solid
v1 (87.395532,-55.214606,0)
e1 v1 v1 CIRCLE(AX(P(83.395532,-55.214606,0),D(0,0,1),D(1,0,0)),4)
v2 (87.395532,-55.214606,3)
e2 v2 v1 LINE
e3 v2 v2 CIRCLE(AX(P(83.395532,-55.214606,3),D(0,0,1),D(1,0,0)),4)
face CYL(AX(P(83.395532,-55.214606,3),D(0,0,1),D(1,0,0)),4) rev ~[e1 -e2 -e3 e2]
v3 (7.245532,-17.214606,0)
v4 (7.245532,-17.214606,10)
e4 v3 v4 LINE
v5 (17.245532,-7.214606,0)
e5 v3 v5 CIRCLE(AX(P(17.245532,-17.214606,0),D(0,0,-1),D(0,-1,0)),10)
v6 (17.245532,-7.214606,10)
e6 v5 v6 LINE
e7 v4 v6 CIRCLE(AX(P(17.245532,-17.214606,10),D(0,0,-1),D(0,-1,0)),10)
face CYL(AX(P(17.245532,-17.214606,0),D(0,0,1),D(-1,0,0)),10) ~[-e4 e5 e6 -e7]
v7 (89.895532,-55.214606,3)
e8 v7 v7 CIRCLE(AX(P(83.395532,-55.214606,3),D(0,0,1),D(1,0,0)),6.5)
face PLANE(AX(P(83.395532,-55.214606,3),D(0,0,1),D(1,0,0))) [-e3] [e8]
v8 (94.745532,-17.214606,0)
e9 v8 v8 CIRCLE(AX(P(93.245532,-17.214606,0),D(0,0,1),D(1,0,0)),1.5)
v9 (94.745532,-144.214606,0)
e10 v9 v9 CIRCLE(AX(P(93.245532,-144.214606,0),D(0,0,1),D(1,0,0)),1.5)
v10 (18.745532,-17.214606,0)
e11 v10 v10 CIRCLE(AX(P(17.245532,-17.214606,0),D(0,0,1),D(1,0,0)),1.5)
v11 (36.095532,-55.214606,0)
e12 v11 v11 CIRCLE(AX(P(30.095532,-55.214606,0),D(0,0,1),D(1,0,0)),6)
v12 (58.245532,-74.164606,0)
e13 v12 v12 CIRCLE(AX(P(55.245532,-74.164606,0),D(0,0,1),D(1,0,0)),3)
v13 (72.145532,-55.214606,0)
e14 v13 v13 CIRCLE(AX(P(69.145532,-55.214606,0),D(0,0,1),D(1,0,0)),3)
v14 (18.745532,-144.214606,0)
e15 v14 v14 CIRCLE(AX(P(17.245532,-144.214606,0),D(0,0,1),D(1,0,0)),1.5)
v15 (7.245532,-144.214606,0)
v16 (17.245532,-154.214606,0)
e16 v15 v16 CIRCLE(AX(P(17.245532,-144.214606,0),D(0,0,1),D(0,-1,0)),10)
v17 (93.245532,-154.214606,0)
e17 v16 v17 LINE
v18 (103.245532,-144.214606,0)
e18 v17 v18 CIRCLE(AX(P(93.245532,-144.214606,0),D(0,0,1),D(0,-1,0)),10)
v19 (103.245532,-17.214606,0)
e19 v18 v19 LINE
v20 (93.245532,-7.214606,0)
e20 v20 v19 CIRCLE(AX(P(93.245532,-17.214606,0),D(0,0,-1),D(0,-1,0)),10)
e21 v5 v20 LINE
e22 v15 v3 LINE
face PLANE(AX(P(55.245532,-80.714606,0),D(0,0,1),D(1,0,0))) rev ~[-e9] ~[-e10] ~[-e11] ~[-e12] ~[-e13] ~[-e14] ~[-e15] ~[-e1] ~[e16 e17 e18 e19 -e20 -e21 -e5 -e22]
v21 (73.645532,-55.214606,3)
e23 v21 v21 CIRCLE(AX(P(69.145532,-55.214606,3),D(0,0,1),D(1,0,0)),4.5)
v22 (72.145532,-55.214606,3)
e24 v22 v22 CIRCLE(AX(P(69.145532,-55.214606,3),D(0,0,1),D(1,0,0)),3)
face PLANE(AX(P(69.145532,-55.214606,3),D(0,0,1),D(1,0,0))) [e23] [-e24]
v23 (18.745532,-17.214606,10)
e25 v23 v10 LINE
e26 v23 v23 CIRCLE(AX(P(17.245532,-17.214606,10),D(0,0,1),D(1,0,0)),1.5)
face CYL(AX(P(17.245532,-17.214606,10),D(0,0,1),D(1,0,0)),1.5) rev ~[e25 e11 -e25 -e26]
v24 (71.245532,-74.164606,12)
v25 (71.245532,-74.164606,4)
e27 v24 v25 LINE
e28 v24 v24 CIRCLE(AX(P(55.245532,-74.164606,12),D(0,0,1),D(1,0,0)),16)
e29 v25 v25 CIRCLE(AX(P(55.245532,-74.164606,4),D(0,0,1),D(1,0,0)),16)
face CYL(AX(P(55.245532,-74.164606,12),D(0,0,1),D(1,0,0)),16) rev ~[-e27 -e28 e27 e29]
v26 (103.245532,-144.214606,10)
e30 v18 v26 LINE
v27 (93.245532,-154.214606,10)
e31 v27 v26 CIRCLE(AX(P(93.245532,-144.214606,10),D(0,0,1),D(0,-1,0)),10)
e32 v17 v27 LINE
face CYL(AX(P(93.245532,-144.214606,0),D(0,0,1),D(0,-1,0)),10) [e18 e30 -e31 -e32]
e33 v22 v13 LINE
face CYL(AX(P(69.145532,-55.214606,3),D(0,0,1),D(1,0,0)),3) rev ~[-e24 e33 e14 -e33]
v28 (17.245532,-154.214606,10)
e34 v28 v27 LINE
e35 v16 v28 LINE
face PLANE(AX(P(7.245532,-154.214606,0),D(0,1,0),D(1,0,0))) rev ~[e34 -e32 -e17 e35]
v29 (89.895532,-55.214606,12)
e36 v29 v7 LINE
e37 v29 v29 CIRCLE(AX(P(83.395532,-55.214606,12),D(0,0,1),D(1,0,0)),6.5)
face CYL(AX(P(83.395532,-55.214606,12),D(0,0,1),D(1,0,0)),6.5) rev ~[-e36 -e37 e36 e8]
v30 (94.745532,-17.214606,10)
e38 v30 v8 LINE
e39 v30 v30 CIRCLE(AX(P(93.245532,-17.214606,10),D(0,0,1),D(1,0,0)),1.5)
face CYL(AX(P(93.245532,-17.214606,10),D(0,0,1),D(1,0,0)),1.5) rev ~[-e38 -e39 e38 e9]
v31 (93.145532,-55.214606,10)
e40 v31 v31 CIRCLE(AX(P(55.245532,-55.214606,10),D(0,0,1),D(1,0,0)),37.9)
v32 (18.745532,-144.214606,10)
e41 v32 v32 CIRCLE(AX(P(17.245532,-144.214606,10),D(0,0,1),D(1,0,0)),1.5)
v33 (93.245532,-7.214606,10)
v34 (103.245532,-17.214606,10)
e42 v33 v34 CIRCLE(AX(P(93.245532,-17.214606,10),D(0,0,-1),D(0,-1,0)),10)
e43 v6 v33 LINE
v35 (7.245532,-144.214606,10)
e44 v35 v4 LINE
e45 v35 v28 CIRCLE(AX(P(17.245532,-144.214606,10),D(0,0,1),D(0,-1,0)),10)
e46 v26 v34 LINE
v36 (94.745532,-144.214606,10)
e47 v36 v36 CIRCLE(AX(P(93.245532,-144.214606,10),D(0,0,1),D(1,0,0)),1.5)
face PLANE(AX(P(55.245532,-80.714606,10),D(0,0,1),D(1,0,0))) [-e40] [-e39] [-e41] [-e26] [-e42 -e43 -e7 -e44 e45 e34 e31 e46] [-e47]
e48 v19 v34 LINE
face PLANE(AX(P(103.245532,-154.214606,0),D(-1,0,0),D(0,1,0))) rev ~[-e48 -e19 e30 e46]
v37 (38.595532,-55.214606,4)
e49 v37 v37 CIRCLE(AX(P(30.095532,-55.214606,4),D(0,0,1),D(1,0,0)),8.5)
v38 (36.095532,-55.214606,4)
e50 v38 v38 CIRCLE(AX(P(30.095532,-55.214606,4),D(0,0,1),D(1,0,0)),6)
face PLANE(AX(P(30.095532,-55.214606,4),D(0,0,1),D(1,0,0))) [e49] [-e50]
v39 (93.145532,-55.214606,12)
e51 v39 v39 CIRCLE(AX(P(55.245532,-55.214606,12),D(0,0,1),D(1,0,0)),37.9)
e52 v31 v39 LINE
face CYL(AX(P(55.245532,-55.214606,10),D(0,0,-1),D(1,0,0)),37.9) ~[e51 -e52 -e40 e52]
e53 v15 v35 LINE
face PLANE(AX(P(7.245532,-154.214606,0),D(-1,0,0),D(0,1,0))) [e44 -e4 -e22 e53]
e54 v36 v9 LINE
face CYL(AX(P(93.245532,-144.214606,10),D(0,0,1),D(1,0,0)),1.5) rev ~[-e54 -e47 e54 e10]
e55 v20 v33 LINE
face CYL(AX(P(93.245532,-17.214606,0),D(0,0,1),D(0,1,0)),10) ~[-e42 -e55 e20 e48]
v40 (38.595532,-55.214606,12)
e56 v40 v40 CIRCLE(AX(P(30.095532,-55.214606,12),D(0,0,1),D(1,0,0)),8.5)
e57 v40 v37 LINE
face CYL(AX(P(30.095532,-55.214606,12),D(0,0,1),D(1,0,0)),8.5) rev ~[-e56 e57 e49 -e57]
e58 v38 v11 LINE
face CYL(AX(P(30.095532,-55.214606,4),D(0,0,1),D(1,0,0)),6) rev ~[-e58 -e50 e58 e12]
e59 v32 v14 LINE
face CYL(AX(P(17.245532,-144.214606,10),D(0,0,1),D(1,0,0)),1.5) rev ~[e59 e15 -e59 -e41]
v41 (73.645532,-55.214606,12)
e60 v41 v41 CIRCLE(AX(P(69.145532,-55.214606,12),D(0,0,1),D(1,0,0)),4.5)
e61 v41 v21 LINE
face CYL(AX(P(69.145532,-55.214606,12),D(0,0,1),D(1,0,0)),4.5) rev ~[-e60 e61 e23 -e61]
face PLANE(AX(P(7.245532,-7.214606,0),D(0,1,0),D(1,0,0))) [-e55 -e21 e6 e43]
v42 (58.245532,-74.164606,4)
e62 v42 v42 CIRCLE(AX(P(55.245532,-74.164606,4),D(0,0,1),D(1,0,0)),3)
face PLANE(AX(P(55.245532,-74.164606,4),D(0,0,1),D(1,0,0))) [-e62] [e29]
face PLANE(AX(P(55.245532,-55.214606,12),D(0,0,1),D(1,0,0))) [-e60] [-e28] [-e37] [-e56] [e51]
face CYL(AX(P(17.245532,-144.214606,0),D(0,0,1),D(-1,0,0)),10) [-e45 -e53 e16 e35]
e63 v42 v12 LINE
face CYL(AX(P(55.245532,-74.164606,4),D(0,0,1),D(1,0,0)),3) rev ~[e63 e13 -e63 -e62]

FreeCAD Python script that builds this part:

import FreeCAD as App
import Part
import Sketcher
from FreeCAD import Vector
Q = App.Units.Quantity


def edges_at(feature, points):
    """Names of the edges that pass closest to the given points."""
    edges = feature.Shape.Edges
    near = lambda p: min(range(len(edges)), key=lambda i: edges[i].distToShape(Part.Vertex(*p))[0])
    return sorted({f"Edge{near(p) + 1}" for p in points})


def add_polygon(sketch, points):
    """Adds a closed chain of lines whose ends are joined by coincident constraints."""
    first, n = sketch.GeometryCount, len(points)
    for a, b in zip(points, points[1:] + points[:1]):
        sketch.addGeometry(Part.LineSegment(App.Vector(*a, 0), App.Vector(*b, 0)), False)
    for i in range(n):
        sketch.addConstraint(Sketcher.Constraint("Coincident", first + i, 2, first + (i + 1) % n, 1))

doc = App.newDocument("Part")
body = doc.addObject("PartDesign::Body", "Body")

# Sketch on XY plane
sketch1 = doc.addObject("Sketcher::SketchObject", "Sketch")
body.addObject(sketch1)
sketch1.AttachmentSupport = (doc.XY_Plane, [""])
sketch1.MapMode = "FlatFace"
add_polygon(sketch1, [(-254.727857, -291.466475), (-254.727857, -438.466475), (-158.727857, -438.466475), (-158.727857, -291.466475)])  # lines 0-3
sketch1.addConstraint([
    Sketcher.Constraint("Vertical", 0),
    Sketcher.Constraint("Horizontal", 1),
    Sketcher.Constraint("Vertical", 2),
    Sketcher.Constraint("Horizontal", 3),
    Sketcher.Constraint("DistanceX", 1, 1, 1, 2, Q("96 mm")),
    Sketcher.Constraint("DistanceY", 0, 2, 0, 1, Q("147 mm")),
    Sketcher.Constraint("DistanceX", 0, 2, -1, 1, Q("254.727857 mm")),
    Sketcher.Constraint("DistanceY", 0, 2, -1, 1, Q("438.466475 mm")),
])
pad1 = doc.addObject("PartDesign::Pad", "Pad")
body.addObject(pad1)
pad1.Profile = sketch1
pad1.Length = 10

# Sketch on XY plane
sketch2 = doc.addObject("Sketcher::SketchObject", "Sketch001")
body.addObject(sketch2)
sketch2.AttachmentSupport = (doc.XY_Plane, [""])
sketch2.MapMode = "FlatFace"
sketch2.AttachmentOffset = App.Placement(Vector(0, 0, 10), App.Rotation())
sketch2.addGeometry(Part.Circle(Vector(-206.727857, -339.466475, 0), Vector(0, 0, 1), 37.9), False)
sketch2.addConstraint([
    Sketcher.Constraint("Diameter", 0, Q("75.8 mm")),
    Sketcher.Constraint("DistanceX", 0, 3, -1, 1, Q("206.727857 mm")),
    Sketcher.Constraint("DistanceY", 0, 3, -1, 1, Q("339.466475 mm")),
])
pad2 = doc.addObject("PartDesign::Pad", "Pad001")
body.addObject(pad2)
pad2.Profile = sketch2
pad2.Length = 2

# Sketch on XY plane
sketch3 = doc.addObject("Sketcher::SketchObject", "Sketch002")
body.addObject(sketch3)
sketch3.AttachmentSupport = (doc.XY_Plane, [""])
sketch3.MapMode = "FlatFace"
sketch3.AttachmentOffset = App.Placement(Vector(0, 0, 12), App.Rotation())
sketch3.addGeometry(Part.Circle(Vector(-206.727857, -358.416475, 0), Vector(0, 0, 1), 16), False)
sketch3.addConstraint([
    Sketcher.Constraint("Diameter", 0, Q("32 mm")),
    Sketcher.Constraint("DistanceX", 0, 3, -1, 1, Q("206.727857 mm")),
    Sketcher.Constraint("DistanceY", 0, 3, -1, 1, Q("358.416475 mm")),
])
pocket1 = doc.addObject("PartDesign::Pocket", "Pocket")
body.addObject(pocket1)
pocket1.Profile = sketch3
pocket1.Length = 8

# Sketch on XY plane
sketch4 = doc.addObject("Sketcher::SketchObject", "Sketch003")
body.addObject(sketch4)
sketch4.AttachmentSupport = (doc.XY_Plane, [""])
sketch4.MapMode = "FlatFace"
sketch4.AttachmentOffset = App.Placement(Vector(0, 0, 4), App.Rotation())
sketch4.addGeometry(Part.Circle(Vector(-206.727857, -358.416475, 0), Vector(0, 0, 1), 3), False)
sketch4.addConstraint([
    Sketcher.Constraint("Diameter", 0, Q("6 mm")),
    Sketcher.Constraint("DistanceX", 0, 3, -1, 1, Q("206.727857 mm")),
    Sketcher.Constraint("DistanceY", 0, 3, -1, 1, Q("358.416475 mm")),
])
pocket2 = doc.addObject("PartDesign::Pocket", "Pocket001")
body.addObject(pocket2)
pocket2.Profile = sketch4
pocket2.Type = "ThroughAll"

# Sketch on XY plane
sketch5 = doc.addObject("Sketcher::SketchObject", "Sketch004")
body.addObject(sketch5)
sketch5.AttachmentSupport = (doc.XY_Plane, [""])
sketch5.MapMode = "FlatFace"
sketch5.AttachmentOffset = App.Placement(Vector(0, 0, 12), App.Rotation())
sketch5.addGeometry(Part.Circle(Vector(-231.877857, -339.466475, 0), Vector(0, 0, 1), 8.5), False)
sketch5.addConstraint([
    Sketcher.Constraint("Diameter", 0, Q("17 mm")),
    Sketcher.Constraint("DistanceX", 0, 3, -1, 1, Q("231.877857 mm")),
    Sketcher.Constraint("DistanceY", 0, 3, -1, 1, Q("339.466475 mm")),
])
pocket3 = doc.addObject("PartDesign::Pocket", "Pocket002")
body.addObject(pocket3)
pocket3.Profile = sketch5
pocket3.Length = 8

# Sketch on XY plane
sketch6 = doc.addObject("Sketcher::SketchObject", "Sketch005")
body.addObject(sketch6)
sketch6.AttachmentSupport = (doc.XY_Plane, [""])
sketch6.MapMode = "FlatFace"
sketch6.AttachmentOffset = App.Placement(Vector(0, 0, 4), App.Rotation())
sketch6.addGeometry(Part.Circle(Vector(-231.877857, -339.466475, 0), Vector(0, 0, 1), 6), False)
sketch6.addConstraint([
    Sketcher.Constraint("Diameter", 0, Q("12 mm")),
    Sketcher.Constraint("DistanceX", 0, 3, -1, 1, Q("231.877857 mm")),
    Sketcher.Constraint("DistanceY", 0, 3, -1, 1, Q("339.466475 mm")),
])
pocket4 = doc.addObject("PartDesign::Pocket", "Pocket003")
body.addObject(pocket4)
pocket4.Profile = sketch6
pocket4.Type = "ThroughAll"

# Sketch on XY plane
sketch7 = doc.addObject("Sketcher::SketchObject", "Sketch006")
body.addObject(sketch7)
sketch7.AttachmentSupport = (doc.XY_Plane, [""])
sketch7.MapMode = "FlatFace"
sketch7.AttachmentOffset = App.Placement(Vector(0, 0, 12), App.Rotation())
sketch7.addGeometry([
    Part.Circle(Vector(-192.827857, -339.466475, 0), Vector(0, 0, 1), 4.5),
    Part.Circle(Vector(-178.577857, -339.466475, 0), Vector(0, 0, 1), 6.5),
], False)
sketch7.addConstraint([
    Sketcher.Constraint("Horizontal", 0, 3, 1, 3),
    Sketcher.Constraint("Diameter", 0, Q("9 mm")),
    Sketcher.Constraint("Diameter", 1, Q("13 mm")),
    Sketcher.Constraint("DistanceX", 0, 3, 1, 3, Q("14.25 mm")),
    Sketcher.Constraint("DistanceX", 0, 3, -1, 1, Q("192.827857 mm")),
    Sketcher.Constraint("DistanceY", 0, 3, -1, 1, Q("339.466475 mm")),
])
pocket5 = doc.addObject("PartDesign::Pocket", "Pocket004")
body.addObject(pocket5)
pocket5.Profile = sketch7
pocket5.Length = 9

# Sketch on XY plane
sketch8 = doc.addObject("Sketcher::SketchObject", "Sketch007")
body.addObject(sketch8)
sketch8.AttachmentSupport = (doc.XY_Plane, [""])
sketch8.MapMode = "FlatFace"
sketch8.AttachmentOffset = App.Placement(Vector(0, 0, 3), App.Rotation())
sketch8.addGeometry([
    Part.Circle(Vector(-178.577857, -339.466475, 0), Vector(0, 0, 1), 4),
    Part.Circle(Vector(-192.827857, -339.466475, 0), Vector(0, 0, 1), 3),
], False)
sketch8.addConstraint([
    Sketcher.Constraint("Horizontal", 0, 3, 1, 3),
    Sketcher.Constraint("Diameter", 0, Q("8 mm")),
    Sketcher.Constraint("Diameter", 1, Q("6 mm")),
    Sketcher.Constraint("DistanceX", 1, 3, 0, 3, Q("14.25 mm")),
    Sketcher.Constraint("DistanceX", 0, 3, -1, 1, Q("178.577857 mm")),
    Sketcher.Constraint("DistanceY", 0, 3, -1, 1, Q("339.466475 mm")),
])
pocket6 = doc.addObject("PartDesign::Pocket", "Pocket005")
body.addObject(pocket6)
pocket6.Profile = sketch8
pocket6.Type = "ThroughAll"

# Sketch on XY plane
sketch9 = doc.addObject("Sketcher::SketchObject", "Sketch008")
body.addObject(sketch9)
sketch9.AttachmentSupport = (doc.XY_Plane, [""])
sketch9.MapMode = "FlatFace"
sketch9.AttachmentOffset = App.Placement(Vector(0, 0, 10), App.Rotation())
sketch9.addGeometry([
    Part.Circle(Vector(-244.727857, -301.466475, 0), Vector(0, 0, 1), 1.5),  # 0
    Part.Circle(Vector(-168.727857, -301.466475, 0), Vector(0, 0, 1), 1.5),  # 1
    Part.Circle(Vector(-168.727857, -428.466475, 0), Vector(0, 0, 1), 1.5),  # 2
    Part.Circle(Vector(-244.727857, -428.466475, 0), Vector(0, 0, 1), 1.5),  # 3
    Part.Circle(Vector(-214.611015, -276.454363, 0), Vector(0, 0, 1), 1),  # 4
    Part.Circle(Vector(-201.837814, -276.122591, 0), Vector(0, 0, 1), 1.5),  # 5
], False)
sketch9.addConstraint([
    Sketcher.Constraint("Equal", 0, 1),
    Sketcher.Constraint("Equal", 1, 2),
    Sketcher.Constraint("Equal", 2, 3),
    Sketcher.Constraint("Equal", 3, 5),
    Sketcher.Constraint("Horizontal", 0, 3, 1, 3),
    Sketcher.Constraint("Horizontal", 2, 3, 3, 3),
    Sketcher.Constraint("Vertical", 1, 3, 2, 3),
    Sketcher.Constraint("Vertical", 0, 3, 3, 3),
    Sketcher.Constraint("Diameter", 0, Q("3 mm")),
    Sketcher.Constraint("Diameter", 4, Q("2 mm")),
    Sketcher.Constraint("DistanceX", 0, 3, 1, 3, Q("76 mm")),
    Sketcher.Constraint("DistanceY", 2, 3, 1, 3, Q("127 mm")),
    Sketcher.Constraint("DistanceX", 4, 3, 5, 3, Q("12.773201 mm")),
    Sketcher.Constraint("DistanceY", 5, 3, -1, 1, Q("276.122591 mm")),
    Sketcher.Constraint("DistanceX", 0, 3, 4, 3, Q("30.116842 mm")),
    Sketcher.Constraint("DistanceY", 3, 3, 4, 3, Q("152.012112 mm")),
    Sketcher.Constraint("DistanceX", 0, 3, -1, 1, Q("244.727857 mm")),
    Sketcher.Constraint("DistanceY", 0, 3, -1, 1, Q("301.466475 mm")),
])
pocket7 = doc.addObject("PartDesign::Pocket", "Pocket006")
body.addObject(pocket7)
pocket7.Profile = sketch9
pocket7.Type = "ThroughAll"
doc.recompute()

fillet = doc.addObject("PartDesign::Fillet", "Fillet")
body.addObject(fillet)
fillet.Base = (pocket7, edges_at(pocket7, [
    (-254.728, -438.466, 5),
    (-158.728, -438.466, 5),
    (-254.728, -291.466, 5),
    (-158.728, -291.466, 5),
]))
fillet.Radius = 10
body2 = doc.addObject("PartDesign::Body", "Body001")
doc.recompute()

body.Placement = App.Placement(Vector(261.973389, 284.251869, 0), App.Rotation(Vector(0, 0, 1), 0))
boolean = doc.addObject("PartDesign::Boolean", "Boolean")
body2.addObject(boolean)
boolean.Type = "Fuse"
boolean.addObjects([body])

doc.recompute()
